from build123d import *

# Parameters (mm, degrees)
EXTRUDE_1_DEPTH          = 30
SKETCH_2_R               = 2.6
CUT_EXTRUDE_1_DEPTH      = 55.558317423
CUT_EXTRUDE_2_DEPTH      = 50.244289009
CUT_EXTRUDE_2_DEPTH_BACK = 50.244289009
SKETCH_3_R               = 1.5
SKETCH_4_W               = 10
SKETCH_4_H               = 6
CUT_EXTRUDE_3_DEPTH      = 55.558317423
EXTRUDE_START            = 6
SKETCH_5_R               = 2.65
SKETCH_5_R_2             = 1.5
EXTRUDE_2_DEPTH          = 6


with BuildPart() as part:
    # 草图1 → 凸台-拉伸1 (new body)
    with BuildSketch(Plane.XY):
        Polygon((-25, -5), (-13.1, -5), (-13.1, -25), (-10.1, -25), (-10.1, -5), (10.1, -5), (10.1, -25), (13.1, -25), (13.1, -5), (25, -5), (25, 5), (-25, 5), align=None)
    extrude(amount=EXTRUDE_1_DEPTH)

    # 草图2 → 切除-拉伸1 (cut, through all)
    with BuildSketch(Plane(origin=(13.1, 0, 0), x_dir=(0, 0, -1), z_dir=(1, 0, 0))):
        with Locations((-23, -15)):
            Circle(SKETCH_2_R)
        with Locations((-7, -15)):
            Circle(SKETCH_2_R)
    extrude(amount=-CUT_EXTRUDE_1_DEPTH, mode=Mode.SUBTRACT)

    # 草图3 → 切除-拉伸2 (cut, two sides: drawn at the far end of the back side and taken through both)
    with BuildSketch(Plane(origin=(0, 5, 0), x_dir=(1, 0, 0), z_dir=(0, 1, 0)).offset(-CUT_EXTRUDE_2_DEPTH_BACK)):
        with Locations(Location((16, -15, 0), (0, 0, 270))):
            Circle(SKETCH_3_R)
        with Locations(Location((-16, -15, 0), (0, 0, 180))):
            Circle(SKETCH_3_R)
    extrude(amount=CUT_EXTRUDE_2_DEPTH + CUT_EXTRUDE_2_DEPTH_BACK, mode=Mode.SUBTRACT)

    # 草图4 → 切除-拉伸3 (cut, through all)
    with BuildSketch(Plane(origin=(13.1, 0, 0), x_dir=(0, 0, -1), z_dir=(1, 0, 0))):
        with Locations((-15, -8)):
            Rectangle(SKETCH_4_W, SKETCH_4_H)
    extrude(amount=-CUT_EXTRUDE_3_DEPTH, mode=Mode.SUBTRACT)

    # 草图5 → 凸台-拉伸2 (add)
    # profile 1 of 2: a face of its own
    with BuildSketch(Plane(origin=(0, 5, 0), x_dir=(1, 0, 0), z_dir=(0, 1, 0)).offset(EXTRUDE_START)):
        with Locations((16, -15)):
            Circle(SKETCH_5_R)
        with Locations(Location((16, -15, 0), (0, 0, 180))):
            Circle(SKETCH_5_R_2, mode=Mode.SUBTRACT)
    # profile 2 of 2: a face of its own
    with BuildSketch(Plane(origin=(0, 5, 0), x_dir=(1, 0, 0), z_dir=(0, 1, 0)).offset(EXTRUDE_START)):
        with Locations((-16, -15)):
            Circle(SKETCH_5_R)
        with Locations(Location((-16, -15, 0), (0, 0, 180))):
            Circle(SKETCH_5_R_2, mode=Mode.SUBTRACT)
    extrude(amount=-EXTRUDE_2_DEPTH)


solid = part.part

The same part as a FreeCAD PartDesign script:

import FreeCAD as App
import Part
import Sketcher
from FreeCAD import Vector
Q = App.Units.Quantity

doc = App.newDocument("Part")
body = doc.addObject("PartDesign::Body", "Body")

sketch1 = body.newObject("Sketcher::SketchObject", "Sketch")
sketch1.AttachmentSupport = (doc.getObject("XY_Plane"), [""])
sketch1.MapMode = "FlatFace"
sketch1.addGeometry(Part.LineSegment(Vector(-25, -5, 0), Vector(-13.1, -5, 0)), False)
sketch1.addGeometry(Part.LineSegment(Vector(-13.1, -5, 0), Vector(-13.1, -25, 0)), False)
sketch1.addGeometry(Part.LineSegment(Vector(-13.1, -25, 0), Vector(-10.1, -25, 0)), False)
sketch1.addGeometry(Part.LineSegment(Vector(-10.1, -25, 0), Vector(-10.1, -5, 0)), False)
sketch1.addGeometry(Part.LineSegment(Vector(-10.1, -5, 0), Vector(10.1, -5, 0)), False)
sketch1.addGeometry(Part.LineSegment(Vector(10.1, -5, 0), Vector(10.1, -25, 0)), False)
sketch1.addGeometry(Part.LineSegment(Vector(10.1, -25, 0), Vector(13.1, -25, 0)), False)
sketch1.addGeometry(Part.LineSegment(Vector(13.1, -25, 0), Vector(13.1, -5, 0)), False)
sketch1.addGeometry(Part.LineSegment(Vector(13.1, -5, 0), Vector(25, -5, 0)), False)
sketch1.addGeometry(Part.LineSegment(Vector(25, -5, 0), Vector(25, 5, 0)), False)
sketch1.addGeometry(Part.LineSegment(Vector(25, 5, 0), Vector(-25, 5, 0)), False)
sketch1.addGeometry(Part.LineSegment(Vector(-25, 5, 0), Vector(-25, -5, 0)), False)
sketch1.addConstraint(Sketcher.Constraint("Coincident", 0, 2, 1, 1))
sketch1.addConstraint(Sketcher.Constraint("Coincident", 1, 2, 2, 1))
sketch1.addConstraint(Sketcher.Constraint("Coincident", 2, 2, 3, 1))
sketch1.addConstraint(Sketcher.Constraint("Coincident", 3, 2, 4, 1))
sketch1.addConstraint(Sketcher.Constraint("Coincident", 4, 2, 5, 1))
sketch1.addConstraint(Sketcher.Constraint("Coincident", 5, 2, 6, 1))
sketch1.addConstraint(Sketcher.Constraint("Coincident", 6, 2, 7, 1))
sketch1.addConstraint(Sketcher.Constraint("Coincident", 7, 2, 8, 1))
sketch1.addConstraint(Sketcher.Constraint("Coincident", 8, 2, 9, 1))
sketch1.addConstraint(Sketcher.Constraint("Coincident", 9, 2, 10, 1))
sketch1.addConstraint(Sketcher.Constraint("Coincident", 10, 2, 11, 1))
sketch1.addConstraint(Sketcher.Constraint("Coincident", 11, 2, 0, 1))
sketch1.addConstraint(Sketcher.Constraint("Horizontal", 0))
sketch1.addConstraint(Sketcher.Constraint("Vertical", 1))
sketch1.addConstraint(Sketcher.Constraint("Horizontal", 2))
sketch1.addConstraint(Sketcher.Constraint("Vertical", 3))
sketch1.addConstraint(Sketcher.Constraint("Horizontal", 4))
sketch1.addConstraint(Sketcher.Constraint("Vertical", 5))
sketch1.addConstraint(Sketcher.Constraint("Horizontal", 6))
sketch1.addConstraint(Sketcher.Constraint("Vertical", 7))
sketch1.addConstraint(Sketcher.Constraint("Horizontal", 8))
sketch1.addConstraint(Sketcher.Constraint("Vertical", 9))
sketch1.addConstraint(Sketcher.Constraint("Horizontal", 10))
sketch1.addConstraint(Sketcher.Constraint("Vertical", 11))
sketch1.addConstraint(Sketcher.Constraint("Symmetric", 8, 2, 10, 2, -1, 1))
sketch1.addConstraint(Sketcher.Constraint("Symmetric", 2, 2, 5, 2, -2))
sketch1.addConstraint(Sketcher.Constraint("Symmetric", 0, 2, 7, 2, -2))
sketch1.addConstraint(Sketcher.Constraint("Horizontal", 0, 2, 3, 2))
sketch1.addConstraint(Sketcher.Constraint("DistanceX", 2, 1, 2, 2, Q("3 mm")))
sketch1.addConstraint(Sketcher.Constraint("DistanceX", 10, 2, 10, 1, Q("50 mm")))
sketch1.addConstraint(Sketcher.Constraint("DistanceY", 1, 2, 1, 1, Q("20 mm")))
sketch1.addConstraint(Sketcher.Constraint("DistanceY", 9, 1, 9, 2, Q("10 mm")))
sketch1.addConstraint(Sketcher.Constraint("DistanceX", 0, 1, 0, 2, Q("11.9 mm")))
pad1 = body.newObject("PartDesign::Pad", "Pad")
pad1.Profile = sketch1
pad1.Length = 30

sketch2 = body.newObject("Sketcher::SketchObject", "Sketch001")
sketch2.AttachmentSupport = (doc.getObject("YZ_Plane"), [""])
sketch2.MapMode = "FlatFace"
sketch2.AttachmentOffset = App.Placement(Vector(0, 0, 13.1), App.Rotation())
sketch2.addGeometry(Part.Circle(Vector(-15, 23, 0), Vector(0, 0, 1), 2.6), False)
sketch2.addGeometry(Part.Circle(Vector(-15, 7, 0), Vector(0, 0, 1), 2.6), False)
sketch2.addConstraint(Sketcher.Constraint("Equal", 0, 1))
sketch2.addConstraint(Sketcher.Constraint("Vertical", 0, 3, 1, 3))
sketch2.addConstraint(Sketcher.Constraint("Diameter", 0, Q("5.2 mm")))
sketch2.addConstraint(Sketcher.Constraint("DistanceX", 0, 3, -1, 1, Q("15 mm")))
sketch2.addConstraint(Sketcher.Constraint("DistanceY", -1, 1, 0, 3, Q("23 mm")))
sketch2.addConstraint(Sketcher.Constraint("DistanceY", -1, 1, 1, 3, Q("7 mm")))
pocket1 = body.newObject("PartDesign::Pocket", "Pocket")
pocket1.Profile = sketch2
pocket1.Type = "ThroughAll"

sketch3 = body.newObject("Sketcher::SketchObject", "Sketch002")
sketch3.AttachmentSupport = (doc.getObject("XZ_Plane"), [""])
sketch3.MapMode = "FlatFace"
sketch3.AttachmentOffset = App.Placement(Vector(0, 0, -5), App.Rotation())
sketch3.addGeometry(Part.Circle(Vector(16, 15, 0), Vector(0, 0, 1), 1.5), False)
sketch3.addGeometry(Part.Circle(Vector(-16, 15, 0), Vector(0, 0, 1), 1.5), False)
sketch3.addConstraint(Sketcher.Constraint("Equal", 0, 1))
sketch3.addConstraint(Sketcher.Constraint("Symmetric", 0, 3, 1, 3, -2))
sketch3.addConstraint(Sketcher.Constraint("Diameter", 0, Q("3 mm")))
sketch3.addConstraint(Sketcher.Constraint("DistanceX", -1, 1, 0, 3, Q("16 mm")))
sketch3.addConstraint(Sketcher.Constraint("DistanceY", -1, 1, 0, 3, Q("15 mm")))
pocket2 = body.newObject("PartDesign::Pocket", "Pocket001")
pocket2.Profile = sketch3
pocket2.Type = "ThroughAll"
pocket2.Midplane = True

sketch4 = body.newObject("Sketcher::SketchObject", "Sketch003")
sketch4.AttachmentSupport = (doc.getObject("YZ_Plane"), [""])
sketch4.MapMode = "FlatFace"
sketch4.AttachmentOffset = App.Placement(Vector(0, 0, 13.1), App.Rotation())
sketch4.addGeometry(Part.LineSegment(Vector(-5, 20, 0), Vector(-11, 20, 0)), False)
sketch4.addGeometry(Part.LineSegment(Vector(-11, 20, 0), Vector(-11, 10, 0)), False)
sketch4.addGeometry(Part.LineSegment(Vector(-11, 10, 0), Vector(-5, 10, 0)), False)
sketch4.addGeometry(Part.LineSegment(Vector(-5, 10, 0), Vector(-5, 20, 0)), False)
sketch4.addConstraint(Sketcher.Constraint("Coincident", 0, 2, 1, 1))
sketch4.addConstraint(Sketcher.Constraint("Coincident", 1, 2, 2, 1))
sketch4.addConstraint(Sketcher.Constraint("Coincident", 2, 2, 3, 1))
sketch4.addConstraint(Sketcher.Constraint("Coincident", 3, 2, 0, 1))
sketch4.addConstraint(Sketcher.Constraint("Horizontal", 0))
sketch4.addConstraint(Sketcher.Constraint("Vertical", 1))
sketch4.addConstraint(Sketcher.Constraint("Horizontal", 2))
sketch4.addConstraint(Sketcher.Constraint("Vertical", 3))
sketch4.addConstraint(Sketcher.Constraint("DistanceX", 0, 2, 0, 1, Q("6 mm")))
sketch4.addConstraint(Sketcher.Constraint("DistanceY", 1, 2, 1, 1, Q("10 mm")))
sketch4.addConstraint(Sketcher.Constraint("DistanceX", 0, 2, -1, 1, Q("11 mm")))
sketch4.addConstraint(Sketcher.Constraint("DistanceY", -1, 1, 0, 2, Q("20 mm")))
pocket3 = body.newObject("PartDesign::Pocket", "Pocket002")
pocket3.Profile = sketch4
pocket3.Type = "ThroughAll"

sketch5 = body.newObject("Sketcher::SketchObject", "Sketch004")
sketch5.AttachmentSupport = (doc.getObject("XZ_Plane"), [""])
sketch5.MapMode = "FlatFace"
sketch5.AttachmentOffset = App.Placement(Vector(0, 0, -11), App.Rotation())
sketch5.addGeometry(Part.Circle(Vector(16, 15, 0), Vector(0, 0, 1), 2.6), False)
sketch5.addGeometry(Part.Circle(Vector(16, 15, 0), Vector(0, 0, 1), 1.5), False)
sketch5.addGeometry(Part.Circle(Vector(-16, 15, 0), Vector(0, 0, 1), 2.6), False)
sketch5.addGeometry(Part.Circle(Vector(-16, 15, 0), Vector(0, 0, 1), 1.5), False)
sketch5.addConstraint(Sketcher.Constraint("Coincident", 1, 3, 0, 3))
sketch5.addConstraint(Sketcher.Constraint("Coincident", 3, 3, 2, 3))
sketch5.addConstraint(Sketcher.Constraint("Equal", 0, 2))
sketch5.addConstraint(Sketcher.Constraint("Equal", 1, 3))
sketch5.addConstraint(Sketcher.Constraint("Symmetric", 0, 3, 2, 3, -2))
sketch5.addConstraint(Sketcher.Constraint("Diameter", 1, Q("3 mm")))
sketch5.addConstraint(Sketcher.Constraint("Diameter", 0, Q("5.3 mm")))
sketch5.addConstraint(Sketcher.Constraint("DistanceX", -1, 1, 0, 3, Q("16 mm")))
sketch5.addConstraint(Sketcher.Constraint("DistanceY", -1, 1, 0, 3, Q("15 mm")))
pad2 = body.newObject("PartDesign::Pad", "Pad001")
pad2.Profile = sketch5
pad2.Length = 6

doc.recompute()
